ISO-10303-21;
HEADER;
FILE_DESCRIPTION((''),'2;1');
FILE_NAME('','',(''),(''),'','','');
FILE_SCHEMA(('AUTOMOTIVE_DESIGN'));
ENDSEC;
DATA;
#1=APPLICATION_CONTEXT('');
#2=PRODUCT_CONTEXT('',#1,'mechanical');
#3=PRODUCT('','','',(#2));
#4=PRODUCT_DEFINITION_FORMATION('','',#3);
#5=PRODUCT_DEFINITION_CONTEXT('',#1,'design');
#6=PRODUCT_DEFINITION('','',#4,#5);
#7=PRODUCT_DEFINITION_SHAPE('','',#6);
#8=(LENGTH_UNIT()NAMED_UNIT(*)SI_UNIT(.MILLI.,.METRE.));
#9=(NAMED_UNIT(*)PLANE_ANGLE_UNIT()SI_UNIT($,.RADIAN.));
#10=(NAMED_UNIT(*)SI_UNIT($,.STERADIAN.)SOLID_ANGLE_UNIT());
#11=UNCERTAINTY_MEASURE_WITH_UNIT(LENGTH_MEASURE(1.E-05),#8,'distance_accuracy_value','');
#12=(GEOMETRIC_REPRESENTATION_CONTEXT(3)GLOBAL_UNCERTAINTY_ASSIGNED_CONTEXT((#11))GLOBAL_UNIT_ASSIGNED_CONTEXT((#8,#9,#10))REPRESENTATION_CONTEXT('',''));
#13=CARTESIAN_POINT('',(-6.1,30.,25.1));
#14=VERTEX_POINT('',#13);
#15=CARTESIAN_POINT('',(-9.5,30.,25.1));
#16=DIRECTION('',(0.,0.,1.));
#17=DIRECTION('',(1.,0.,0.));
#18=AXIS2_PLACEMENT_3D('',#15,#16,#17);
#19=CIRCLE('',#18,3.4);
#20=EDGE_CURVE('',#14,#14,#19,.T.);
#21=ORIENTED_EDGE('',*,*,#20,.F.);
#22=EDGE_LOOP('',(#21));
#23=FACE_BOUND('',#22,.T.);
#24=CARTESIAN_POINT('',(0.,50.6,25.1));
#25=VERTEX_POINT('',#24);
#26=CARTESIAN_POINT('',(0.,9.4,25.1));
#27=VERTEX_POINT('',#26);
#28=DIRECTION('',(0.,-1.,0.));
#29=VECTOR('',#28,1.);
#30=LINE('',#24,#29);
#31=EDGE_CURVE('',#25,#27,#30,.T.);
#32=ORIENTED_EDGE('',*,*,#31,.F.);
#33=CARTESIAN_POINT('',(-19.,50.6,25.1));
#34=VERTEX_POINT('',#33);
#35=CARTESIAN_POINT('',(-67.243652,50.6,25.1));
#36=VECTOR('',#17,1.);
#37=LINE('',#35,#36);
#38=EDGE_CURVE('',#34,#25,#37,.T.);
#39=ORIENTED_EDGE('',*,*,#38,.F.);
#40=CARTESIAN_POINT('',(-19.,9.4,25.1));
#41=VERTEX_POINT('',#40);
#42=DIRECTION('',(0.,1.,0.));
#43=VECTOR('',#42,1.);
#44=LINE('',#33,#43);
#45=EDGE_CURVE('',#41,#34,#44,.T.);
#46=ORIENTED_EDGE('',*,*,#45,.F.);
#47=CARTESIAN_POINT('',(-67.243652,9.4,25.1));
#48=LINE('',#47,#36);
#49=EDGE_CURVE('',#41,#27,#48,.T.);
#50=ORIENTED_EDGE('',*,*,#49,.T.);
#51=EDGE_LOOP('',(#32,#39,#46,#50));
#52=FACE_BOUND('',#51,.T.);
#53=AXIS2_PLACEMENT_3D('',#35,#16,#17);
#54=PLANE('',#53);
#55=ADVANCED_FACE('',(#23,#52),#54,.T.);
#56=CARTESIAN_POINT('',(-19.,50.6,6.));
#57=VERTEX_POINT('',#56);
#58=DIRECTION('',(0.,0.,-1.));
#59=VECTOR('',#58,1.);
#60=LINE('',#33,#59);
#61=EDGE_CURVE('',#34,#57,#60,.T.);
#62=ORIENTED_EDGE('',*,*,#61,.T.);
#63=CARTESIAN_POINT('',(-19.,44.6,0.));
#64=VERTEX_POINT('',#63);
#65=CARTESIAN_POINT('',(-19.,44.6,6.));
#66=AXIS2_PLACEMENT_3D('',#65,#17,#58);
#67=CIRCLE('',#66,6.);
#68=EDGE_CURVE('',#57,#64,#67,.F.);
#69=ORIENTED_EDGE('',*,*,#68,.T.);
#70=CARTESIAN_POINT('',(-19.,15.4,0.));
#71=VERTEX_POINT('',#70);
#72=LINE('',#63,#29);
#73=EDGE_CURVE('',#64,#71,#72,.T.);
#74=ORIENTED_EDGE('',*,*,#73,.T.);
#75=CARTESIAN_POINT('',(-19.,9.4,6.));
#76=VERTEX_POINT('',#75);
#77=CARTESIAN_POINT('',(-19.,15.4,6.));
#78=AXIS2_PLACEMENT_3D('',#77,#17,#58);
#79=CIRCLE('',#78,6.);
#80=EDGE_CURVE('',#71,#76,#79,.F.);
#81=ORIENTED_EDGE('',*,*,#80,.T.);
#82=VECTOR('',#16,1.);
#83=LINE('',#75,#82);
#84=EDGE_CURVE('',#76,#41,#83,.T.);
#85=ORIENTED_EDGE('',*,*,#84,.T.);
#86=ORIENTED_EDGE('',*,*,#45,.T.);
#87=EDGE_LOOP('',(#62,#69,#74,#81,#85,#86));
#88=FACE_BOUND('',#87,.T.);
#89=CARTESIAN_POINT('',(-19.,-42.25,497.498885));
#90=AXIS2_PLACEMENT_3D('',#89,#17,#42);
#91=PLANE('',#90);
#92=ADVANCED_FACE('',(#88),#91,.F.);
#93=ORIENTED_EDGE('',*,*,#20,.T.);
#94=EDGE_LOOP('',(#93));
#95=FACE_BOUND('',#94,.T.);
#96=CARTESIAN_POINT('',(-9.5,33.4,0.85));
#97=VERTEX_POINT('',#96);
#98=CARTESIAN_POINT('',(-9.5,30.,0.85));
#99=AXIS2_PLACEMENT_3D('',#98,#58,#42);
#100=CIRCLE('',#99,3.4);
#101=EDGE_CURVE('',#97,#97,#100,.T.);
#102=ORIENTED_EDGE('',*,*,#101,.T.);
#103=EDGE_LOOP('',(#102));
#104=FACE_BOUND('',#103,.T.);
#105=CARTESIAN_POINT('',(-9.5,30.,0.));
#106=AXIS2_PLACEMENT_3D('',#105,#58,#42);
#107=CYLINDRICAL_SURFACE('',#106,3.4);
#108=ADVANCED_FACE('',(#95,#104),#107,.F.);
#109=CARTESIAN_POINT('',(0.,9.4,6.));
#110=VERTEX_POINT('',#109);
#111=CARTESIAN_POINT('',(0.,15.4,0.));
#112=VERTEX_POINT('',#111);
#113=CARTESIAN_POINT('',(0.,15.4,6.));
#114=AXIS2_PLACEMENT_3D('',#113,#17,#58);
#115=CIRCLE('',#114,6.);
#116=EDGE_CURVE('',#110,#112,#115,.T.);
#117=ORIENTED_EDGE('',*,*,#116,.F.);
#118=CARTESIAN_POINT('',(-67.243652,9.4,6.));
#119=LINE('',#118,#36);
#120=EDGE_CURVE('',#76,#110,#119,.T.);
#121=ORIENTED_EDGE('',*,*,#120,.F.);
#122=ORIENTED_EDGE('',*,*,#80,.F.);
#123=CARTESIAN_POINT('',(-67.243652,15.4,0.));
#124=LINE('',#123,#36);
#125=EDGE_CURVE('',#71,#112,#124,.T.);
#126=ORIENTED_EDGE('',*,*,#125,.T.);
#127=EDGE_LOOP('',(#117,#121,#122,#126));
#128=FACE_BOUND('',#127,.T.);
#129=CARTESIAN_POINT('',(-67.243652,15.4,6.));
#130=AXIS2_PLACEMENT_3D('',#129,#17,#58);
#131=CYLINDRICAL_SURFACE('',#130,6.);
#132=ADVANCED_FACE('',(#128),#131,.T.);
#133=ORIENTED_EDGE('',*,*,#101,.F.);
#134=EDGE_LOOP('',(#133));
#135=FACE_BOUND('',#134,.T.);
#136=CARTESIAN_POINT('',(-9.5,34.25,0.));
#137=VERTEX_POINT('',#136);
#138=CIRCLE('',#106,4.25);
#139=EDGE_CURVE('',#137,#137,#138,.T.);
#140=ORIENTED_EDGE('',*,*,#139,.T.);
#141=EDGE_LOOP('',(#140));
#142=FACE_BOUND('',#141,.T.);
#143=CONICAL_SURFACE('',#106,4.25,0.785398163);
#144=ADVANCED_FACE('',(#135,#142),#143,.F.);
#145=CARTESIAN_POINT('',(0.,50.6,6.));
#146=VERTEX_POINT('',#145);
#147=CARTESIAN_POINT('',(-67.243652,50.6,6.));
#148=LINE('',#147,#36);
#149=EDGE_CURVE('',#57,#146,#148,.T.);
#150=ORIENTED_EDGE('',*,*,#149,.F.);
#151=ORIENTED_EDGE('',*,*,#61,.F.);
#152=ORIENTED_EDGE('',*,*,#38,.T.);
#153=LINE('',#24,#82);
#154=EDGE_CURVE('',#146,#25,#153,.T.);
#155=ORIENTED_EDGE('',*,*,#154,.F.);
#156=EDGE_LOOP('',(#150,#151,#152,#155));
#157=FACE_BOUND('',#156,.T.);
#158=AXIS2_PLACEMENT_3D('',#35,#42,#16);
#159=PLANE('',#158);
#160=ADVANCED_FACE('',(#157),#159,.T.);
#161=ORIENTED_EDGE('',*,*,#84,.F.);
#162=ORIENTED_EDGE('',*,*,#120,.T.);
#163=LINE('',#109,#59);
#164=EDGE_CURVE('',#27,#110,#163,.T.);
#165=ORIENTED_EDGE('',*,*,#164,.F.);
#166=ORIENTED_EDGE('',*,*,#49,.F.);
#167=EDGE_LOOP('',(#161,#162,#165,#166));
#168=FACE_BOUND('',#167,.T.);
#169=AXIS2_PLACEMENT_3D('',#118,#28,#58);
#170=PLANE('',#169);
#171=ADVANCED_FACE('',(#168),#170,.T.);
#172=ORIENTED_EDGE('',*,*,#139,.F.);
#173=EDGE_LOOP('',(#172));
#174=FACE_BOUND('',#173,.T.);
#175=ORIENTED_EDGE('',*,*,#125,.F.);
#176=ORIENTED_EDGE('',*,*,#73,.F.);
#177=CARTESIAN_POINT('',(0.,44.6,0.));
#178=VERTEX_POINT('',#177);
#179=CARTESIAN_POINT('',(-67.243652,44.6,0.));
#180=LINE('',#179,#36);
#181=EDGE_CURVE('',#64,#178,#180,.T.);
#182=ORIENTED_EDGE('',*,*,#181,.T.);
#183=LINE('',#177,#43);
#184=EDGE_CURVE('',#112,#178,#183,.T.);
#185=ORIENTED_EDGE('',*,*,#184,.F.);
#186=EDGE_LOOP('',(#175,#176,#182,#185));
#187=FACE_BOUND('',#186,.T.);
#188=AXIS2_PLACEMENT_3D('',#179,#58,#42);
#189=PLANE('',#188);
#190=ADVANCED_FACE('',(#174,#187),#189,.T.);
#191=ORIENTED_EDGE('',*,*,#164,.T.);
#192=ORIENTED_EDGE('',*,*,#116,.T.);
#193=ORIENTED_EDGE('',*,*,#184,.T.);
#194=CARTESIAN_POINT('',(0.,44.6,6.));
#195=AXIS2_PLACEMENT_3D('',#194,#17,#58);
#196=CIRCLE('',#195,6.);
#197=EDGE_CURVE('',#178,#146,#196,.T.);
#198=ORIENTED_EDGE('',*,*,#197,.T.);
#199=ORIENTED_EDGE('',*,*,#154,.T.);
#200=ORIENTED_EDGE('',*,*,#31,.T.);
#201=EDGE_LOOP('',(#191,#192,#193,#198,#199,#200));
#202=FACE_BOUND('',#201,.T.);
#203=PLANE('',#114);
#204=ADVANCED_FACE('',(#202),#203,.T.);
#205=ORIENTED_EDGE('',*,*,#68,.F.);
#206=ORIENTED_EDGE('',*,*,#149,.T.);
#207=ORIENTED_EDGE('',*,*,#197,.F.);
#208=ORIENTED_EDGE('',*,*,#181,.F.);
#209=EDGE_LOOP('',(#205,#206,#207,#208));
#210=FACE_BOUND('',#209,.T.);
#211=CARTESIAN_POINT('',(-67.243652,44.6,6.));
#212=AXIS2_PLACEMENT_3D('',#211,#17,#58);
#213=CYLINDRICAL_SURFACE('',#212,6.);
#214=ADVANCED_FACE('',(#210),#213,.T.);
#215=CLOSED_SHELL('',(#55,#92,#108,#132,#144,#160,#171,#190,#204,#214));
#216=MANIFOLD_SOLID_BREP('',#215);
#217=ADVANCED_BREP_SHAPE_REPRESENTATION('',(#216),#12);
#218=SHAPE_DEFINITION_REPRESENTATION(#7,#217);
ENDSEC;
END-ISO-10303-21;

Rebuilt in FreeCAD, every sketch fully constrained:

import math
import FreeCAD as App
import Part
import Sketcher
from FreeCAD import Vector
Q = App.Units.Quantity

doc = App.newDocument("Part")
body = doc.addObject("PartDesign::Body", "Body")

# Sketch on YZ plane
sketch1 = body.newObject("Sketcher::SketchObject", "Sketch")
sketch1.AttachmentSupport = (doc.getObject("YZ_Plane"), [""])
sketch1.MapMode = "FlatFace"
sketch1.addGeometry([
    Part.LineSegment(Vector(9, 25, 0), Vector(9, 6, 0)),  # 0
    Part.ArcOfCircle(Part.Circle(Vector(15, 6, 0), Vector(0, 0, 1), 6), math.radians(180), math.radians(270)),  # 1
    Part.LineSegment(Vector(15, 0, 0), Vector(45, 0, 0)),  # 2
    Part.ArcOfCircle(Part.Circle(Vector(45, 6, 0), Vector(0, 0, 1), 6), math.radians(-90), math.radians(0)),  # 3
    Part.LineSegment(Vector(51, 6, 0), Vector(51, 25, 0)),  # 4
    Part.LineSegment(Vector(51, 25, 0), Vector(9, 25, 0)),  # 5
], False)
sketch1.addConstraint([
    Sketcher.Constraint("Tangent", 0, 2, 1, 1),
    Sketcher.Constraint("Tangent", 1, 2, 2, 1),
    Sketcher.Constraint("Tangent", 2, 2, 3, 1),
    Sketcher.Constraint("Tangent", 3, 2, 4, 1),
    Sketcher.Constraint("Coincident", 4, 2, 5, 1),
    Sketcher.Constraint("Coincident", 5, 2, 0, 1),
    Sketcher.Constraint("Vertical", 0),
    Sketcher.Constraint("Horizontal", 2),
    Sketcher.Constraint("Vertical", 4),
    Sketcher.Constraint("Horizontal", 5),
    Sketcher.Constraint("Equal", 1, 3),
    Sketcher.Constraint("PointOnObject", 1, 2, -1),
    Sketcher.Constraint("Radius", 1, Q("6 mm")),
    Sketcher.Constraint("DistanceX", 2, 1, 2, 2, Q("29.2 mm")),
    Sketcher.Constraint("DistanceY", 0, 2, 0, 1, Q("19.1 mm")),
    Sketcher.Constraint("DistanceX", -1, 1, 1, 3, Q("15.4 mm")),
])
pad1 = body.newObject("PartDesign::Pad", "Pad")
pad1.Profile = sketch1
pad1.Length = 19
pad1.Reversed = True

# Sketch on XY plane
sketch2 = body.newObject("Sketcher::SketchObject", "Sketch001")
sketch2.AttachmentSupport = (doc.getObject("XY_Plane"), [""])
sketch2.MapMode = "FlatFace"
sketch2.addGeometry(Part.Circle(Vector(-9.5, 30, 0), Vector(0, 0, 1), 3.4), False)
sketch2.addConstraint([
    Sketcher.Constraint("Diameter", 0, Q("6.8 mm")),
    Sketcher.Constraint("DistanceY", -1, 1, 0, 3, Q("30 mm")),
    Sketcher.Constraint("DistanceX", 0, 3, -1, 1, Q("9.5 mm")),
])
doc.recompute()
hole = body.newObject("PartDesign::Hole", "Hole")
hole.Profile = sketch2
hole.ThreadType = "None"
hole.Diameter = 6.8
hole.DepthType = "Dimension"
hole.Depth = 28.25
hole.DrillPoint = "Angled"
hole.DrillPointAngle = 118
hole.HoleCutType = "Countersink"
hole.HoleCutDiameter = 8.5
hole.HoleCutCountersinkAngle = 90
hole.Reversed = True

doc.recompute()
